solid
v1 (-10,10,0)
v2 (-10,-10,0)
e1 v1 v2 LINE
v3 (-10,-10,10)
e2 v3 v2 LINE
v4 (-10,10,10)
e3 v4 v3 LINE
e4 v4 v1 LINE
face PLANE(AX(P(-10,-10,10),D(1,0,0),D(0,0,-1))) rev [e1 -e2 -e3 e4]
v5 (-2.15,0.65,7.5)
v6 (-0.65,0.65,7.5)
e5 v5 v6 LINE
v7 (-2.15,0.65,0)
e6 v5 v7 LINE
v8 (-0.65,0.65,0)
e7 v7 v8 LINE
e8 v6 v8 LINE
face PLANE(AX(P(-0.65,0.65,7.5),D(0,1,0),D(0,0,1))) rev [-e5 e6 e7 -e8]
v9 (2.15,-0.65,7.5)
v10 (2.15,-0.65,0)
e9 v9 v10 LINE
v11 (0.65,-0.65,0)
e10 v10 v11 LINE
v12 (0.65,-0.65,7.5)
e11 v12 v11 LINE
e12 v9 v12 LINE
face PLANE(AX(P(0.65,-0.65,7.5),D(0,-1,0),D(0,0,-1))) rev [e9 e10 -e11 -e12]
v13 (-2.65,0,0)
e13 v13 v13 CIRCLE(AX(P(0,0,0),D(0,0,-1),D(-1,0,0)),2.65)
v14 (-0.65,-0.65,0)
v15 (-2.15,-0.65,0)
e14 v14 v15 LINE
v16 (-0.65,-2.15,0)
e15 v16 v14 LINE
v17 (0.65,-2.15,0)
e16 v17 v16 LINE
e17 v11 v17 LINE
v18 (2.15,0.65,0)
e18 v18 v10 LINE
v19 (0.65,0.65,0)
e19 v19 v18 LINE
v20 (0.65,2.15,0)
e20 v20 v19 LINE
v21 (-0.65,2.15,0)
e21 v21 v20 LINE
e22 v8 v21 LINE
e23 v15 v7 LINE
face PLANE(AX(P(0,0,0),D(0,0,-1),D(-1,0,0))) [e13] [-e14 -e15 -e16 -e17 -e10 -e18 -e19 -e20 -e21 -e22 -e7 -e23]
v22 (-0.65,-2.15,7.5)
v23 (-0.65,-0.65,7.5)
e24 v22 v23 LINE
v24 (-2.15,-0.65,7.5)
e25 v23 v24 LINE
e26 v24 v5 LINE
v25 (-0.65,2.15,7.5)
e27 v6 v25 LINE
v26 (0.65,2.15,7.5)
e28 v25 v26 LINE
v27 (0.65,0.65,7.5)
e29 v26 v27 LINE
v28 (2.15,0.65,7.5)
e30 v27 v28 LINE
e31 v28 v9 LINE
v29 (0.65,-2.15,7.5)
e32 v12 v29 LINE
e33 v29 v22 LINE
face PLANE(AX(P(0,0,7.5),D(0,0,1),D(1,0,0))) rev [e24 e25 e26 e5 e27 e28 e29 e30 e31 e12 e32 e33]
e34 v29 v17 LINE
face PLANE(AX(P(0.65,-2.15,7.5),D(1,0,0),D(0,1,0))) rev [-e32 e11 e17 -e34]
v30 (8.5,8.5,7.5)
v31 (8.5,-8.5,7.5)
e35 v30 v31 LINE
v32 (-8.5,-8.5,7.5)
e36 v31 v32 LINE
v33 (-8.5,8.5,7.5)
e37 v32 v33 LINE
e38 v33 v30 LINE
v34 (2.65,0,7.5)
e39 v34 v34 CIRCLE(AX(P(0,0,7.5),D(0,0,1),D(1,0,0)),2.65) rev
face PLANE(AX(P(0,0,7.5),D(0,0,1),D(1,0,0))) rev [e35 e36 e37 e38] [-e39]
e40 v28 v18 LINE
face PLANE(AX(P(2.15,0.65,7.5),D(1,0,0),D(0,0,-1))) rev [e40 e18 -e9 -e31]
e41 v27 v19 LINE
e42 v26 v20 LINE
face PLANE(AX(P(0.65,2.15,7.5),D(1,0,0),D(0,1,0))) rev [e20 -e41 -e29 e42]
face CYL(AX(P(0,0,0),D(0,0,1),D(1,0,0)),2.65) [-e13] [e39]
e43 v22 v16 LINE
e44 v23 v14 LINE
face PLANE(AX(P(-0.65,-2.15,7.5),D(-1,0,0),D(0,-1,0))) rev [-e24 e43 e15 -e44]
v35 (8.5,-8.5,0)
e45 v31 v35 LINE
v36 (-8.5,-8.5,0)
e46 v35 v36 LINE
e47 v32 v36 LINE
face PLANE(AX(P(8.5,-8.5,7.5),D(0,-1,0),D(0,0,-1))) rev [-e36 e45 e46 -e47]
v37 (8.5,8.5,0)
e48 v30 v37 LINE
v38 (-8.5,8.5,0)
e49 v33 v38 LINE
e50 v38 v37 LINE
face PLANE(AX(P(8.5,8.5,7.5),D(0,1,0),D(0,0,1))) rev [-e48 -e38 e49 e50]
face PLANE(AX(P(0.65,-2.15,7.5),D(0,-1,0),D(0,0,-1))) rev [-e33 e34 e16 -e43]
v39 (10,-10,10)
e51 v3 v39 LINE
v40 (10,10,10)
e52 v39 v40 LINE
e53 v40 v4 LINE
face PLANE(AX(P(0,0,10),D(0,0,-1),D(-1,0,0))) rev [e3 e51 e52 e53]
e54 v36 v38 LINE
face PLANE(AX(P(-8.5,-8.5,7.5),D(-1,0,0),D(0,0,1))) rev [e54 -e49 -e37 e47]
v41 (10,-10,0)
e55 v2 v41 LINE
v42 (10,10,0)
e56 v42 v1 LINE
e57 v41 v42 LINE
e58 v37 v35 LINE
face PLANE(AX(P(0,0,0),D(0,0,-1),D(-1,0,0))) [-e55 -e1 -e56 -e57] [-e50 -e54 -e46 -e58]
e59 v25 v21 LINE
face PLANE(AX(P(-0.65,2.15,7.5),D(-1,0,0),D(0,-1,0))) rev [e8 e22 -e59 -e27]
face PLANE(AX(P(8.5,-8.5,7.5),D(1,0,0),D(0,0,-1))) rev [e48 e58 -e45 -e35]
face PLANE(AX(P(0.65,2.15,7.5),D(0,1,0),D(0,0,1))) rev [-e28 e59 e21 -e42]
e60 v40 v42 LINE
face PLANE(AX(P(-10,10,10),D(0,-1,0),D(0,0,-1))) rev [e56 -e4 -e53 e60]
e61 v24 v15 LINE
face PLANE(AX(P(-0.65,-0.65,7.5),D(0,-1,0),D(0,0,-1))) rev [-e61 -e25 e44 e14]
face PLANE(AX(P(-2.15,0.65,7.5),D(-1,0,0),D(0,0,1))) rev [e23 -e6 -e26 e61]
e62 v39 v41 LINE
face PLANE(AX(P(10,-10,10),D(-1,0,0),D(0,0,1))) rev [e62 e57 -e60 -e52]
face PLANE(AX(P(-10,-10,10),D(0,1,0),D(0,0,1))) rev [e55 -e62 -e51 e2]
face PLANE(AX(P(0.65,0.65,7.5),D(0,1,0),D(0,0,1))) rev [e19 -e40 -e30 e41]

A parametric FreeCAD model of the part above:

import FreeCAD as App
import Part
import Sketcher

V = App.Vector
Q = App.Units.Quantity


def add_polygon(sketch, points):
    """Adds a closed chain of lines whose ends are joined by coincident constraints."""
    first, n = sketch.GeometryCount, len(points)
    for a, b in zip(points, points[1:] + points[:1]):
        sketch.addGeometry(Part.LineSegment(App.Vector(*a, 0), App.Vector(*b, 0)), False)
    for i in range(n):
        sketch.addConstraint(Sketcher.Constraint("Coincident", first + i, 2, first + (i + 1) % n, 1))

doc = App.newDocument("Part")
body = doc.addObject("PartDesign::Body", "Body")

# Sketch on XY plane
sketch1 = doc.addObject("Sketcher::SketchObject", "Sketch")
body.addObject(sketch1)
sketch1.AttachmentSupport = (doc.XY_Plane, [""])
sketch1.MapMode = "FlatFace"
add_polygon(sketch1, [(-10, 10), (-10, -10), (10, -10), (10, 10)])  # lines 0-3
sketch1.addConstraint([
    Sketcher.Constraint("Vertical", 0),
    Sketcher.Constraint("Horizontal", 1),
    Sketcher.Constraint("Vertical", 2),
    Sketcher.Constraint("Horizontal", 3),
    Sketcher.Constraint("Symmetric", 0, 2, 2, 2, -1, 1),
    Sketcher.Constraint("Equal", 3, 0),
    Sketcher.Constraint("DistanceX", 1, 1, 1, 2, Q("20 mm")),
])
pad1 = doc.addObject("PartDesign::Pad", "Pad")
body.addObject(pad1)
pad1.Profile = sketch1
pad1.Length = 10

# Sketch on XY plane
sketch2 = doc.addObject("Sketcher::SketchObject", "Sketch001")
body.addObject(sketch2)
sketch2.AttachmentSupport = (doc.XY_Plane, [""])
sketch2.MapMode = "FlatFace"
add_polygon(sketch2, [(8.5, 8.5), (8.5, -8.5), (-8.5, -8.5), (-8.5, 8.5)])  # lines 0-3
sketch2.addConstraint([
    Sketcher.Constraint("Vertical", 0),
    Sketcher.Constraint("Horizontal", 1),
    Sketcher.Constraint("Vertical", 2),
    Sketcher.Constraint("Horizontal", 3),
    Sketcher.Constraint("Symmetric", 0, 2, 2, 2, -1, 1),
    Sketcher.Constraint("Equal", 3, 0),
    Sketcher.Constraint("DistanceX", 1, 2, 1, 1, Q("17 mm")),
])
pocket1 = doc.addObject("PartDesign::Pocket", "Pocket")
body.addObject(pocket1)
pocket1.Profile = sketch2
pocket1.Length = 7.5
pocket1.Reversed = True

# Sketch on XY plane
sketch3 = doc.addObject("Sketcher::SketchObject", "Sketch002")
body.addObject(sketch3)
sketch3.AttachmentSupport = (doc.XY_Plane, [""])
sketch3.MapMode = "FlatFace"
sketch3.AttachmentOffset = App.Placement(V(0, 0, 7.5), App.Rotation())
sketch3.addGeometry(Part.Circle(V(0, 0, 0), V(0, 0, 1), 2.65), False)
sketch3.addConstraint([
    Sketcher.Constraint("Coincident", 0, 3, -1, 1),
    Sketcher.Constraint("Diameter", 0, Q("5.3 mm")),
])
pad2 = doc.addObject("PartDesign::Pad", "Pad001")
body.addObject(pad2)
pad2.Profile = sketch3
pad2.Length = 7.5
pad2.Reversed = True

# Sketch on XY plane
sketch4 = doc.addObject("Sketcher::SketchObject", "Sketch003")
body.addObject(sketch4)
sketch4.AttachmentSupport = (doc.XY_Plane, [""])
sketch4.MapMode = "FlatFace"
add_polygon(sketch4, [(-0.65, 2.15), (0.65, 2.15), (0.65, 0.65), (2.15, 0.65), (2.15, -0.65), (0.65, -0.65), (0.65, -2.15), (-0.65, -2.15), (-0.65, -0.65), (-2.15, -0.65), (-2.15, 0.65), (-0.65, 0.65)])  # lines 0-11
sketch4.addConstraint([
    Sketcher.Constraint("Horizontal", 0),
    Sketcher.Constraint("Vertical", 1),
    Sketcher.Constraint("Horizontal", 2),
    Sketcher.Constraint("Vertical", 3),
    Sketcher.Constraint("Horizontal", 4),
    Sketcher.Constraint("Vertical", 5),
    Sketcher.Constraint("Horizontal", 6),
    Sketcher.Constraint("Vertical", 7),
    Sketcher.Constraint("Horizontal", 8),
    Sketcher.Constraint("Vertical", 9),
    Sketcher.Constraint("Horizontal", 10),
    Sketcher.Constraint("Vertical", 11),
    Sketcher.Constraint("Symmetric", 0, 2, 6, 2, -1, 1),
    Sketcher.Constraint("Symmetric", 2, 2, 8, 2, -1, 1),
    Sketcher.Constraint("Symmetric", 4, 2, 10, 2, -1, 1),
    Sketcher.Constraint("Symmetric", 4, 2, 7, 2, -2),
    Sketcher.Constraint("Equal", 10, 1),
    Sketcher.Constraint("Equal", 6, 3),
    Sketcher.Constraint("DistanceX", 0, 1, 0, 2, Q("1.3 mm")),
    Sketcher.Constraint("DistanceX", 2, 1, 2, 2, Q("1.5 mm")),
])
pocket2 = doc.addObject("PartDesign::Pocket", "Pocket001")
body.addObject(pocket2)
pocket2.Profile = sketch4
pocket2.Length = 7.5
pocket2.Reversed = True

doc.recompute()
